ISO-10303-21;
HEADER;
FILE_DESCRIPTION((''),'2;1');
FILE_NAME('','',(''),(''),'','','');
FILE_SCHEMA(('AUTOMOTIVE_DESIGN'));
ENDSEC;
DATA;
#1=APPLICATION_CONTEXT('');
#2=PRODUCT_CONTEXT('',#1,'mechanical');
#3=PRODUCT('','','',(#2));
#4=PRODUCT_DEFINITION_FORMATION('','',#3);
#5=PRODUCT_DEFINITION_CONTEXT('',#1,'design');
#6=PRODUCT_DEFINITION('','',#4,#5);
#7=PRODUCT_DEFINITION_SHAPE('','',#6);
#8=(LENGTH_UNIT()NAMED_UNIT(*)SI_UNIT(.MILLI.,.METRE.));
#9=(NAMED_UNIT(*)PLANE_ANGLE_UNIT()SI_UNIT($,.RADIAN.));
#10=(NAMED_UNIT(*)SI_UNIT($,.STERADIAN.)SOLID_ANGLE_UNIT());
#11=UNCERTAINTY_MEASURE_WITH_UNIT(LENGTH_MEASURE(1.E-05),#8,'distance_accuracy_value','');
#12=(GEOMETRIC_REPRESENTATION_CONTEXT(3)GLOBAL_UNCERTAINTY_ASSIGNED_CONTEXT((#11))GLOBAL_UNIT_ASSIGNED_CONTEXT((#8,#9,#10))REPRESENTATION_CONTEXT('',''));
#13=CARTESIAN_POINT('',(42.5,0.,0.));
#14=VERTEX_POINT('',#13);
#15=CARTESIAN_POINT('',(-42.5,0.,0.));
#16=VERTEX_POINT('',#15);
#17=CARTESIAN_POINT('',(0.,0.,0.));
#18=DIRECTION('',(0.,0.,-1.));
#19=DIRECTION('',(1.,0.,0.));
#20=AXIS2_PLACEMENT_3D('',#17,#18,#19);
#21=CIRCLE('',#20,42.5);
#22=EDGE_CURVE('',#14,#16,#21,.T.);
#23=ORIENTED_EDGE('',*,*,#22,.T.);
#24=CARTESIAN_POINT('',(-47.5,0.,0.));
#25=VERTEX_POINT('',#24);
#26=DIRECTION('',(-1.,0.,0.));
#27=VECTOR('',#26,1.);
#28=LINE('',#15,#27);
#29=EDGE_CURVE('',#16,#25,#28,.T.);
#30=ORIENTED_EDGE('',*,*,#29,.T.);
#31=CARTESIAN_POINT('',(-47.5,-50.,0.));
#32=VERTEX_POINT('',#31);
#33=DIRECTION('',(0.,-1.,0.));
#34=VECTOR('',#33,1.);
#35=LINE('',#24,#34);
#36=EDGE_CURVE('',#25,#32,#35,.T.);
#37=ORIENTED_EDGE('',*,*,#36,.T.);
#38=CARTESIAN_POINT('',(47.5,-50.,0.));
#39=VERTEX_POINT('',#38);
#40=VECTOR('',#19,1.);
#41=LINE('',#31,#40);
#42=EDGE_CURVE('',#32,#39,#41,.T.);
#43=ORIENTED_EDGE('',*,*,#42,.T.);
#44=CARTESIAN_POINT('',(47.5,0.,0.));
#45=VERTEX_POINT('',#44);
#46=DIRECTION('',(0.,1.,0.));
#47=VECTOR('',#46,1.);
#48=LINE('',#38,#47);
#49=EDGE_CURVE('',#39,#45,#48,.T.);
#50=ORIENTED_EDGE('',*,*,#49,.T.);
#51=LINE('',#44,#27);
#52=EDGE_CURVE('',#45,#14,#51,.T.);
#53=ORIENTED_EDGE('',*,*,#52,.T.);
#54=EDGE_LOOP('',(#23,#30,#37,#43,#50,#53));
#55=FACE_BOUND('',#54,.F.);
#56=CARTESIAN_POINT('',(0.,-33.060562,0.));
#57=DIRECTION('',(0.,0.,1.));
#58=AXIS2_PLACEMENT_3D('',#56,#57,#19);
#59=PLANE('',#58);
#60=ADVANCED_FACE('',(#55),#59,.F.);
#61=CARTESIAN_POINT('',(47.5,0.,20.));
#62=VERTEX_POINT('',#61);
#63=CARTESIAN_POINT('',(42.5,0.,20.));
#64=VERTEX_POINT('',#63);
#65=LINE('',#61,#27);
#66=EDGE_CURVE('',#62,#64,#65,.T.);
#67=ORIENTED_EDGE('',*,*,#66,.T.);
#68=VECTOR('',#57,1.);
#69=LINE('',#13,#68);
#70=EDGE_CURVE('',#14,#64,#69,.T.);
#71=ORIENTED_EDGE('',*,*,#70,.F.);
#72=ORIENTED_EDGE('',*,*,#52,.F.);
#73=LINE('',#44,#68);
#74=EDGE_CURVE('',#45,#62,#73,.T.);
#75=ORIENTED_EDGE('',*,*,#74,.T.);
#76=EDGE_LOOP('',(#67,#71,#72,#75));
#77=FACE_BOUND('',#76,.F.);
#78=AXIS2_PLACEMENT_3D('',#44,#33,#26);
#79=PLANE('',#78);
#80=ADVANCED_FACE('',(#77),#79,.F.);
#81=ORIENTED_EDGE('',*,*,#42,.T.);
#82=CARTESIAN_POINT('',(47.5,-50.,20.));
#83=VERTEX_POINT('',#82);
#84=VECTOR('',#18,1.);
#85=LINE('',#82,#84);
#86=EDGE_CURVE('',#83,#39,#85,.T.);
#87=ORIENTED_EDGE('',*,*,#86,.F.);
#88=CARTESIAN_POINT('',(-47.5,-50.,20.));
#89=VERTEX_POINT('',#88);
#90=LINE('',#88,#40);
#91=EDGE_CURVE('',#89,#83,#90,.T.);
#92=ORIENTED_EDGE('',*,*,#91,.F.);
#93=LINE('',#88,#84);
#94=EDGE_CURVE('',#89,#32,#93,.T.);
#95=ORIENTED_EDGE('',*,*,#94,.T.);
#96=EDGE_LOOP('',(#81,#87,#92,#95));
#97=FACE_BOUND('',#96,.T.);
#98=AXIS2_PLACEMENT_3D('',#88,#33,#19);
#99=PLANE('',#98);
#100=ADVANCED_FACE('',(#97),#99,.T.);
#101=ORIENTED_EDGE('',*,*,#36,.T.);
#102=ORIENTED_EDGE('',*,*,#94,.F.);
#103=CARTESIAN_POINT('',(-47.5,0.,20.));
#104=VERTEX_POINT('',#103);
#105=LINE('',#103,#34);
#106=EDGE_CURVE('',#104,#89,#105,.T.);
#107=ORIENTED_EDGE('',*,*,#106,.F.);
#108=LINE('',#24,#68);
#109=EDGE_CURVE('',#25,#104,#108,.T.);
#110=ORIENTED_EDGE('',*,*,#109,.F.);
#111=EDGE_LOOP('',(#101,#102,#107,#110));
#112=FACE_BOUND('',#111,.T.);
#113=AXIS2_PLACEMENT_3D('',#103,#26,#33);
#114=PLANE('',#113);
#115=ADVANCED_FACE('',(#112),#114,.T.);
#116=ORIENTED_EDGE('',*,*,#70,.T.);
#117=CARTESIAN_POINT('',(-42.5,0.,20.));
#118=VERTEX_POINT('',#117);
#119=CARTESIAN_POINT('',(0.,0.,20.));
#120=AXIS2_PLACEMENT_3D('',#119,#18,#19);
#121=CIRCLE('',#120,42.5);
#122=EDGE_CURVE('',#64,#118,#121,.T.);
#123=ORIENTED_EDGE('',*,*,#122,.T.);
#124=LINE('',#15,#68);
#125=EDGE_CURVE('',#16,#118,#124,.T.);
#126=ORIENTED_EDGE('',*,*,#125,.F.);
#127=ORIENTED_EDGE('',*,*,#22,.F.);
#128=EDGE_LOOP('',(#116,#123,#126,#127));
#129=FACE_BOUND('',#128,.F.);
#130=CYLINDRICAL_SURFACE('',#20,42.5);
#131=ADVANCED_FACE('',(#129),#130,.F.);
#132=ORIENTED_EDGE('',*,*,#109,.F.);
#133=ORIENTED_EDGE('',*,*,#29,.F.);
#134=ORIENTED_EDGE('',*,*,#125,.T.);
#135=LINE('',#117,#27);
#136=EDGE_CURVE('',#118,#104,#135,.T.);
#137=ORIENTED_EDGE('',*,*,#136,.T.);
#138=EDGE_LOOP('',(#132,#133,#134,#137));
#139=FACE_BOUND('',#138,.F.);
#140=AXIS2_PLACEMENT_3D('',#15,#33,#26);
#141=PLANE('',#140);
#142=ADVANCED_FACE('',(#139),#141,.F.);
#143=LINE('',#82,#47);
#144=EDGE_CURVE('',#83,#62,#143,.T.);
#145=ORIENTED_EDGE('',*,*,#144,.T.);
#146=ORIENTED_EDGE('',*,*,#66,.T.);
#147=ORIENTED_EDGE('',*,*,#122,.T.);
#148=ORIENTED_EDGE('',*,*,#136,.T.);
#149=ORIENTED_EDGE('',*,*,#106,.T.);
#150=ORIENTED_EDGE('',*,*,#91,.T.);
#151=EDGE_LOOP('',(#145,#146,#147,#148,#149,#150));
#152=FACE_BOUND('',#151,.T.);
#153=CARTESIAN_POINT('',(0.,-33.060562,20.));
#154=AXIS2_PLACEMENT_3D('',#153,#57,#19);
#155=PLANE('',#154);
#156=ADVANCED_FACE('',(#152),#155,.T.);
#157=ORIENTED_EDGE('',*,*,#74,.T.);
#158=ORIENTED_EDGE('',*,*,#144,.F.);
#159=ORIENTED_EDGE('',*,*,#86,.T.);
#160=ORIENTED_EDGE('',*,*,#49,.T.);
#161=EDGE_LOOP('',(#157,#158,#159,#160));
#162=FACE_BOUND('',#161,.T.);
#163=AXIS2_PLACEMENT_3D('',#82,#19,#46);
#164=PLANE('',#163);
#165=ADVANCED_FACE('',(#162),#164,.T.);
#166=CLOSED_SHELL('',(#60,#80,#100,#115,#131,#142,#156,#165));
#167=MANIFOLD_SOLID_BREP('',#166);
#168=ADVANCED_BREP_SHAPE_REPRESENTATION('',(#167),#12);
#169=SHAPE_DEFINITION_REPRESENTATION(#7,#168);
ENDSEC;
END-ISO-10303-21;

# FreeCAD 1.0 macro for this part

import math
import FreeCAD as App
import Part
import Sketcher
from FreeCAD import Vector

doc = App.newDocument("Part")
params = doc.addObject("Spreadsheet::Sheet", "Params")
for row, (alias, value) in enumerate([
    ("sketch1_radius", "42.5 mm"),
    ("sketch1_radius2", "47.5 mm"),
    ("pad1_length", "20 mm"),
    ("sketch2_radius", "47.5 mm"),
    ("sketch2_height", "50 mm"),
    ("pad2_length", "20 mm"),
], start=1):
    params.set(f"A{row}", alias)
    params.set(f"B{row}", "=" + value)
    params.setAlias(f"B{row}", alias)

body = doc.addObject("PartDesign::Body", "Body")

# Sketch on XY plane
sketch1 = body.newObject("Sketcher::SketchObject", "Sketch")
sketch1.AttachmentSupport = (doc.getObject("XY_Plane"), [""])
sketch1.MapMode = "FlatFace"
sketch1.addGeometry(Part.ArcOfCircle(Part.Circle(Vector(0, 0, 0), Vector(0, 0, 1), 42), math.radians(180), math.radians(360)), False)
sketch1.addGeometry(Part.LineSegment(Vector(-42, 0, 0), Vector(-48, 0, 0)), False)
sketch1.addGeometry(Part.ArcOfCircle(Part.Circle(Vector(0, 0, 0), Vector(0, 0, 1), 48), math.radians(180), math.radians(360)), False)
sketch1.addGeometry(Part.LineSegment(Vector(48, 0, 0), Vector(42, 0, 0)), False)
sketch1.addConstraint(Sketcher.Constraint("Coincident", 0, 1, 1, 1))
sketch1.addConstraint(Sketcher.Constraint("Coincident", 1, 2, 2, 1))
sketch1.addConstraint(Sketcher.Constraint("Coincident", 2, 2, 3, 1))
sketch1.addConstraint(Sketcher.Constraint("Coincident", 3, 2, 0, 2))
sketch1.addConstraint(Sketcher.Constraint("Horizontal", 1))
sketch1.addConstraint(Sketcher.Constraint("Horizontal", 3))
sketch1.addConstraint(Sketcher.Constraint("Coincident", 0, 3, -1, 1))
sketch1.addConstraint(Sketcher.Constraint("Coincident", 2, 3, -1, 1))
sketch1.addConstraint(Sketcher.Constraint("PointOnObject", 0, 1, -1))
sketch1.addConstraint(Sketcher.Constraint("PointOnObject", 2, 2, -1))
sketch1.addConstraint(Sketcher.Constraint("Radius", 0, 42.5))
sketch1.addConstraint(Sketcher.Constraint("Radius", 2, 47.5))
sketch1.setExpression("Constraints[10]", "Params.sketch1_radius")
sketch1.setExpression("Constraints[11]", "Params.sketch1_radius2")
pad1 = body.newObject("PartDesign::Pad", "Pad")
pad1.Profile = sketch1
pad1.setExpression("Length", "Params.pad1_length")

# Sketch on XY plane
sketch2 = body.newObject("Sketcher::SketchObject", "Sketch001")
sketch2.AttachmentSupport = (doc.getObject("XY_Plane"), [""])
sketch2.MapMode = "FlatFace"
sketch2.AttachmentOffset = App.Placement(Vector(0, 0, 20), App.Rotation())
sketch2.addGeometry(Part.ArcOfCircle(Part.Circle(Vector(0, 0, 0), Vector(0, 0, 1), 48), math.radians(180), math.radians(360)), False)
sketch2.addGeometry(Part.LineSegment(Vector(-48, 0, 0), Vector(-48, -50, 0)), False)
sketch2.addGeometry(Part.LineSegment(Vector(-48, -50, 0), Vector(48, -50, 0)), False)
sketch2.addGeometry(Part.LineSegment(Vector(48, -50, 0), Vector(48, 0, 0)), False)
sketch2.addConstraint(Sketcher.Constraint("Tangent", 0, 1, 1, 1))
sketch2.addConstraint(Sketcher.Constraint("Coincident", 1, 2, 2, 1))
sketch2.addConstraint(Sketcher.Constraint("Coincident", 2, 2, 3, 1))
sketch2.addConstraint(Sketcher.Constraint("Tangent", 3, 2, 0, 2))
sketch2.addConstraint(Sketcher.Constraint("Vertical", 1))
sketch2.addConstraint(Sketcher.Constraint("Horizontal", 2))
sketch2.addConstraint(Sketcher.Constraint("Vertical", 3))
sketch2.addConstraint(Sketcher.Constraint("Coincident", 0, 3, -1, 1))
sketch2.addConstraint(Sketcher.Constraint("Radius", 0, 47.5))
sketch2.addConstraint(Sketcher.Constraint("DistanceY", 1, 2, 1, 1, 50.0))
sketch2.setExpression("Constraints[8]", "Params.sketch2_radius")
sketch2.setExpression("Constraints[9]", "Params.sketch2_height")
pad2 = body.newObject("PartDesign::Pad", "Pad001")
pad2.Profile = sketch2
pad2.setExpression("Length", "Params.pad2_length")
pad2.Reversed = True

doc.recompute()
